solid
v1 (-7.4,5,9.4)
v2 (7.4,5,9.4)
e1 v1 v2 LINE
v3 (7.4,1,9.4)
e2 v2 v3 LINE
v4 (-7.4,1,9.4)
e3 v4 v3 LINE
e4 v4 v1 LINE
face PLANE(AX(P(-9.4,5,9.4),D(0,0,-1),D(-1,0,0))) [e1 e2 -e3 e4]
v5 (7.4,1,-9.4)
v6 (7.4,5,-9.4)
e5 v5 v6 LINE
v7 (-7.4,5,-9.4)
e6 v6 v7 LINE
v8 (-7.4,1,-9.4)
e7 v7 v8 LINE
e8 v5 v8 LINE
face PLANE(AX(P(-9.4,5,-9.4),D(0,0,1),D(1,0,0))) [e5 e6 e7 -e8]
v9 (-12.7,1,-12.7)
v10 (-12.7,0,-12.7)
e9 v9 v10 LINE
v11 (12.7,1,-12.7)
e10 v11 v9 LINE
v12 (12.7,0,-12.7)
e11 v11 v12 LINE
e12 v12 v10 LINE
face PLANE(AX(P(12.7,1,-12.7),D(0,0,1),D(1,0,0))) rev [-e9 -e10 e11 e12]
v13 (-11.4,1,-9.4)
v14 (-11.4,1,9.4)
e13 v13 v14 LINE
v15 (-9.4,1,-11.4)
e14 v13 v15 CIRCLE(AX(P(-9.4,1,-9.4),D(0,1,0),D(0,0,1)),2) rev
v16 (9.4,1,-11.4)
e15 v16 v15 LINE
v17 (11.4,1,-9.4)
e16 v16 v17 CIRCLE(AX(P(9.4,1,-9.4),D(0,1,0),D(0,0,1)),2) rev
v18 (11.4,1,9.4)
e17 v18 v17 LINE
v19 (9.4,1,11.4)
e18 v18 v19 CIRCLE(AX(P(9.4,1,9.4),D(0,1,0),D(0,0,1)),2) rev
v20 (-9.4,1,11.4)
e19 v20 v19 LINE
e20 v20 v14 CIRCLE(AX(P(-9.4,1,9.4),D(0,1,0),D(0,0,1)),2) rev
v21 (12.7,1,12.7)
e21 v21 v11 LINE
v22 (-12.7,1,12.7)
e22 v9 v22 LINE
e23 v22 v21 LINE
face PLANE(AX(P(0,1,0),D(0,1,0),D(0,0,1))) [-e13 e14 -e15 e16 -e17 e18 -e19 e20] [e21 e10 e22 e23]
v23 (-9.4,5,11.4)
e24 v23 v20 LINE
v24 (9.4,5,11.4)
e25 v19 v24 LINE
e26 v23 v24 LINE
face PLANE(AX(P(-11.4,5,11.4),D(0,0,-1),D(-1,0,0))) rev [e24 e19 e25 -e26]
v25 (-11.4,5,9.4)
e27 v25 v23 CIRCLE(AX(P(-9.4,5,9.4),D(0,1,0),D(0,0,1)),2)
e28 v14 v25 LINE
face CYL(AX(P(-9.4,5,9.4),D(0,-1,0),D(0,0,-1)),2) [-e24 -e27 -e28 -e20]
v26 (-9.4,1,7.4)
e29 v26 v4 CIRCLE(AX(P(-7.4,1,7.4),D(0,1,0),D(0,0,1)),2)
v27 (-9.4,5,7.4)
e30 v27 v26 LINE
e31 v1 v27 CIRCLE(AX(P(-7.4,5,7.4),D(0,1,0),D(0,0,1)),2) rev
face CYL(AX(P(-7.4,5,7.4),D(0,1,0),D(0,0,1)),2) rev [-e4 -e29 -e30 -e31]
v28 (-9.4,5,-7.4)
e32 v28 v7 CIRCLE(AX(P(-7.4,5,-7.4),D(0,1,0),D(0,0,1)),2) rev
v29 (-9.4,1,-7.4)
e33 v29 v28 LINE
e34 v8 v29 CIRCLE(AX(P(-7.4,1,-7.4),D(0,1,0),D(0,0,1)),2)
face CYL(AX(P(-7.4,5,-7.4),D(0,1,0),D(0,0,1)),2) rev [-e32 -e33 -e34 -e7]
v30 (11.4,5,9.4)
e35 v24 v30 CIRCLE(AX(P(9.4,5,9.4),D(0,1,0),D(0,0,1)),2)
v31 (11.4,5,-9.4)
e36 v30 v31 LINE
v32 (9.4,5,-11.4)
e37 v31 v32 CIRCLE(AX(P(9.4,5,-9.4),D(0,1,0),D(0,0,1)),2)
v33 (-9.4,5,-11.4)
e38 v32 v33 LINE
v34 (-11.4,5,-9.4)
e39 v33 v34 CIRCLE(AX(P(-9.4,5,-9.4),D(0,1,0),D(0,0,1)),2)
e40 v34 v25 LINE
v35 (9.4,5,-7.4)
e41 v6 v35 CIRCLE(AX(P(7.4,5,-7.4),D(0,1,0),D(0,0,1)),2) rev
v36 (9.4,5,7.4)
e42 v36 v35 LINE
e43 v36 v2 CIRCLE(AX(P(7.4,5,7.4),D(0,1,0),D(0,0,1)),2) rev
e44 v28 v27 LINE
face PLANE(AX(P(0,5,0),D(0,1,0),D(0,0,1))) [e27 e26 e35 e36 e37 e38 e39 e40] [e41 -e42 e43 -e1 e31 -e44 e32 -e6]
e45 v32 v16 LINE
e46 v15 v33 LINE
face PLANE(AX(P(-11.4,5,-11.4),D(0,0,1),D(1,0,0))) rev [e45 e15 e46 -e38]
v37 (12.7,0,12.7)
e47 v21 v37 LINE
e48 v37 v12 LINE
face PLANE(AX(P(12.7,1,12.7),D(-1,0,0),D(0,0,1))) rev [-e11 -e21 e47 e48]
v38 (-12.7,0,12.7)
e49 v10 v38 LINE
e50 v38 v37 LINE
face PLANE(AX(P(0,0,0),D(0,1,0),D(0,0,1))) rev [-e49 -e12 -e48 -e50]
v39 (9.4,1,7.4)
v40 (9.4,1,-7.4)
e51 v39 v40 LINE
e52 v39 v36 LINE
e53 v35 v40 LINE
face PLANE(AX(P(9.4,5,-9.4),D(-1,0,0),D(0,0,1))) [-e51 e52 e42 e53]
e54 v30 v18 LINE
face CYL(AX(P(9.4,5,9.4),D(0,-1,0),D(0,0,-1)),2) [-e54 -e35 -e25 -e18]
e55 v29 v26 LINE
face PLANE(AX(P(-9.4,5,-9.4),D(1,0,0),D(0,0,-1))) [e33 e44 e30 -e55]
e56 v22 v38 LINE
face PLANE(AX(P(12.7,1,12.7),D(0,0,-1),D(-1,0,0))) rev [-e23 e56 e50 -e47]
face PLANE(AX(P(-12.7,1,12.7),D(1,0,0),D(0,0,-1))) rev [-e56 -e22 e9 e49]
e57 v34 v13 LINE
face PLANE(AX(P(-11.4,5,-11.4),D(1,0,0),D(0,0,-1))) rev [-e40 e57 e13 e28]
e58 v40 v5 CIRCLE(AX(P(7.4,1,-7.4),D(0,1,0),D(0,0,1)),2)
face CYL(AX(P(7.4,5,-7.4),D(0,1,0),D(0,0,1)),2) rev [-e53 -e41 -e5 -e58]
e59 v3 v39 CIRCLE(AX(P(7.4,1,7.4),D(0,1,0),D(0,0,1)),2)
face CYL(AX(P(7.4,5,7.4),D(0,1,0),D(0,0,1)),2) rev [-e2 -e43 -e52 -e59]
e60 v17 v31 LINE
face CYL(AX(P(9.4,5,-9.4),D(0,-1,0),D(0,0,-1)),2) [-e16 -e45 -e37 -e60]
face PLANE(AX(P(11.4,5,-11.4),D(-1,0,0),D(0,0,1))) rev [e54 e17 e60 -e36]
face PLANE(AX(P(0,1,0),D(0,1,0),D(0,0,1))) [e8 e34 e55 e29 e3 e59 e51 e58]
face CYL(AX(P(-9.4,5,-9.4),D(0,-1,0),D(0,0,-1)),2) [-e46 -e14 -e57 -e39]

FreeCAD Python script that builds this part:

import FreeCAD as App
import Part
import Sketcher
Q = App.Units.Quantity


def edges_at(feature, points):
    """Names of the edges that pass closest to the given points."""
    edges = feature.Shape.Edges
    near = lambda p: min(range(len(edges)), key=lambda i: edges[i].distToShape(Part.Vertex(*p))[0])
    return sorted({f"Edge{near(p) + 1}" for p in points})

doc = App.newDocument("Part")
body = doc.addObject("PartDesign::Body", "Body")

# Sketch on XZ plane
sketch1 = body.newObject("Sketcher::SketchObject", "Sketch")
sketch1.AttachmentSupport = (doc.getObject("XZ_Plane"), [""])
sketch1.MapMode = "FlatFace"
sketch1.addGeometry(Part.LineSegment(App.Vector(-13, -13, 0), App.Vector(-13, 13, 0)), False)
sketch1.addGeometry(Part.LineSegment(App.Vector(-13, 13, 0), App.Vector(13, 13, 0)), False)
sketch1.addGeometry(Part.LineSegment(App.Vector(13, 13, 0), App.Vector(13, -13, 0)), False)
sketch1.addGeometry(Part.LineSegment(App.Vector(13, -13, 0), App.Vector(-13, -13, 0)), False)
sketch1.addConstraint(Sketcher.Constraint("Coincident", 0, 2, 1, 1))
sketch1.addConstraint(Sketcher.Constraint("Coincident", 1, 2, 2, 1))
sketch1.addConstraint(Sketcher.Constraint("Coincident", 2, 2, 3, 1))
sketch1.addConstraint(Sketcher.Constraint("Coincident", 3, 2, 0, 1))
sketch1.addConstraint(Sketcher.Constraint("Vertical", 0))
sketch1.addConstraint(Sketcher.Constraint("Horizontal", 1))
sketch1.addConstraint(Sketcher.Constraint("Vertical", 2))
sketch1.addConstraint(Sketcher.Constraint("Horizontal", 3))
sketch1.addConstraint(Sketcher.Constraint("Symmetric", 0, 2, 2, 2, -1, 1))
sketch1.addConstraint(Sketcher.Constraint("Equal", 3, 0))
sketch1.addConstraint(Sketcher.Constraint("DistanceX", 1, 1, 1, 2, Q("25.4 mm")))
pad1 = body.newObject("PartDesign::Pad", "Pad")
pad1.Profile = sketch1
pad1.Length = 1
pad1.Reversed = True

# Sketch on XZ plane
sketch2 = body.newObject("Sketcher::SketchObject", "Sketch001")
sketch2.AttachmentSupport = (doc.getObject("XZ_Plane"), [""])
sketch2.MapMode = "FlatFace"
sketch2.AttachmentOffset = App.Placement(App.Vector(0, 0, -1), App.Rotation())
sketch2.addGeometry(Part.LineSegment(App.Vector(-11, -11, 0), App.Vector(-11, 11, 0)), False)
sketch2.addGeometry(Part.LineSegment(App.Vector(-11, 11, 0), App.Vector(11, 11, 0)), False)
sketch2.addGeometry(Part.LineSegment(App.Vector(11, 11, 0), App.Vector(11, -11, 0)), False)
sketch2.addGeometry(Part.LineSegment(App.Vector(11, -11, 0), App.Vector(-11, -11, 0)), False)
sketch2.addGeometry(Part.LineSegment(App.Vector(9, 9, 0), App.Vector(-9, 9, 0)), False)
sketch2.addGeometry(Part.LineSegment(App.Vector(-9, 9, 0), App.Vector(-9, -9, 0)), False)
sketch2.addGeometry(Part.LineSegment(App.Vector(-9, -9, 0), App.Vector(9, -9, 0)), False)
sketch2.addGeometry(Part.LineSegment(App.Vector(9, -9, 0), App.Vector(9, 9, 0)), False)
sketch2.addConstraint(Sketcher.Constraint("Coincident", 0, 2, 1, 1))
sketch2.addConstraint(Sketcher.Constraint("Coincident", 1, 2, 2, 1))
sketch2.addConstraint(Sketcher.Constraint("Coincident", 2, 2, 3, 1))
sketch2.addConstraint(Sketcher.Constraint("Coincident", 3, 2, 0, 1))
sketch2.addConstraint(Sketcher.Constraint("Coincident", 4, 2, 5, 1))
sketch2.addConstraint(Sketcher.Constraint("Coincident", 5, 2, 6, 1))
sketch2.addConstraint(Sketcher.Constraint("Coincident", 6, 2, 7, 1))
sketch2.addConstraint(Sketcher.Constraint("Coincident", 7, 2, 4, 1))
sketch2.addConstraint(Sketcher.Constraint("Vertical", 0))
sketch2.addConstraint(Sketcher.Constraint("Horizontal", 1))
sketch2.addConstraint(Sketcher.Constraint("Vertical", 2))
sketch2.addConstraint(Sketcher.Constraint("Horizontal", 3))
sketch2.addConstraint(Sketcher.Constraint("Horizontal", 4))
sketch2.addConstraint(Sketcher.Constraint("Vertical", 5))
sketch2.addConstraint(Sketcher.Constraint("Horizontal", 6))
sketch2.addConstraint(Sketcher.Constraint("Vertical", 7))
sketch2.addConstraint(Sketcher.Constraint("Symmetric", 0, 2, 2, 2, -1, 1))
sketch2.addConstraint(Sketcher.Constraint("Symmetric", 4, 2, 6, 2, -1, 1))
sketch2.addConstraint(Sketcher.Constraint("Equal", 3, 0))
sketch2.addConstraint(Sketcher.Constraint("Equal", 6, 5))
sketch2.addConstraint(Sketcher.Constraint("DistanceX", 1, 1, 1, 2, Q("22.8 mm")))
sketch2.addConstraint(Sketcher.Constraint("DistanceX", 4, 2, 4, 1, Q("18.8 mm")))
pad2 = body.newObject("PartDesign::Pad", "Pad001")
pad2.Profile = sketch2
pad2.Length = 4
pad2.Reversed = True
doc.recompute()

fillet = body.newObject("PartDesign::Fillet", "Fillet")
fillet.Base = (pad2, edges_at(pad2, [
    (11.4, 3, 11.4),
    (11.4, 3, -11.4),
    (-11.4, 3, -11.4),
    (-11.4, 3, 11.4),
    (-9.4, 3, -9.4),
    (-9.4, 3, 9.4),
    (9.4, 3, 9.4),
    (9.4, 3, -9.4),
]))
fillet.Radius = 2

doc.recompute()
